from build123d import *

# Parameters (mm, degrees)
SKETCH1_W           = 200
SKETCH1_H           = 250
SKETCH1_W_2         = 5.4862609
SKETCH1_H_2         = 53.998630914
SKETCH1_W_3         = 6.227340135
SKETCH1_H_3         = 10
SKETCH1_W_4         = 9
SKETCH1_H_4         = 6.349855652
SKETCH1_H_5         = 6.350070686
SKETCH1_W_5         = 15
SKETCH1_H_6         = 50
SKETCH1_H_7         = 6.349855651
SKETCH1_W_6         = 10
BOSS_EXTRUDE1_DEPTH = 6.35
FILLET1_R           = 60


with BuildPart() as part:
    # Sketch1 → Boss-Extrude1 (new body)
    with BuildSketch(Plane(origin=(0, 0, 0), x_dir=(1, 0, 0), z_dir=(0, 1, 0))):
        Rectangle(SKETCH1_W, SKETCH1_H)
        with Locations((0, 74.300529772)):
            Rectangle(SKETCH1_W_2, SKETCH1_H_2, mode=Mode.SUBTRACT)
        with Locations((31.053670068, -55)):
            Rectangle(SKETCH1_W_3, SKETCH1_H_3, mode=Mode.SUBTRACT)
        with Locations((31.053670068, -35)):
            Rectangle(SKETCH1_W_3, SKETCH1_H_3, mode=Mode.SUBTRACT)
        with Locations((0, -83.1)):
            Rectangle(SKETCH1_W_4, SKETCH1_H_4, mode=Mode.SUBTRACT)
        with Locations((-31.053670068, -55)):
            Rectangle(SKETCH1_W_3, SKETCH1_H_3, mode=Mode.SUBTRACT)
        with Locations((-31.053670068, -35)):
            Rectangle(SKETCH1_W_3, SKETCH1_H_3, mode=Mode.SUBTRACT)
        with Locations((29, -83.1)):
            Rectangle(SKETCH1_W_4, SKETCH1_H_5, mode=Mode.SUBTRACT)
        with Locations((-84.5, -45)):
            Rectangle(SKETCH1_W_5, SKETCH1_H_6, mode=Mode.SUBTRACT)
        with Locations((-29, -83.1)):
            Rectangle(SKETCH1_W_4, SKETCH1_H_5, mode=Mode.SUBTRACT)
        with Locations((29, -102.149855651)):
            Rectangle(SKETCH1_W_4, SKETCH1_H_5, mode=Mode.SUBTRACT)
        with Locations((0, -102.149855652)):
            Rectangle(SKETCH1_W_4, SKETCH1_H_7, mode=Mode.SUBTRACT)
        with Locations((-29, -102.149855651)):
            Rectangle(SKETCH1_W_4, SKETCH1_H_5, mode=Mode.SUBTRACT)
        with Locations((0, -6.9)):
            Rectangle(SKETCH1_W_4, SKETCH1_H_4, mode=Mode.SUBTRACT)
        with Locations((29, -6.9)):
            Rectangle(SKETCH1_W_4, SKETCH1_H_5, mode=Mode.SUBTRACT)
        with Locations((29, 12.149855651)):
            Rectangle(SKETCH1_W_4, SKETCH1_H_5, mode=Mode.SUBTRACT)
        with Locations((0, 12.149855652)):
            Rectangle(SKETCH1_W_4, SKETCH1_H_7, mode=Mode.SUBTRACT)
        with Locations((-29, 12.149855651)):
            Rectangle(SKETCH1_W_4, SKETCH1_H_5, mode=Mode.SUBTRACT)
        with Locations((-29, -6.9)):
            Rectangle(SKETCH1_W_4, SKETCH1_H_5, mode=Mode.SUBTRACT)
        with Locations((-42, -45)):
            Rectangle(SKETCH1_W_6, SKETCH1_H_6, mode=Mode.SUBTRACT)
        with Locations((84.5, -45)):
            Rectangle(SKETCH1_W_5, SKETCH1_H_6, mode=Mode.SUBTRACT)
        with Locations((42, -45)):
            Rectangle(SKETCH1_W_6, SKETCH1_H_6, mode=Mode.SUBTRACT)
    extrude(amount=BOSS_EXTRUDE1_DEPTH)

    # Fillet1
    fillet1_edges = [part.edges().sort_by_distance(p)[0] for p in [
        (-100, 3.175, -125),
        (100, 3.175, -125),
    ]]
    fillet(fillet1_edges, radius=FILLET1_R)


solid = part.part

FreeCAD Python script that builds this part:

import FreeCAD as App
import Part
import Sketcher
from FreeCAD import Vector


def edges_at(feature, points):
    """Names of the edges that pass closest to the given points."""
    edges = feature.Shape.Edges
    near = lambda p: min(range(len(edges)), key=lambda i: edges[i].distToShape(Part.Vertex(*p))[0])
    return sorted({f"Edge{near(p) + 1}" for p in points})

doc = App.newDocument("Part")
body = doc.addObject("PartDesign::Body", "Body")

# Sketch on XZ plane
sketch1 = doc.addObject("Sketcher::SketchObject", "Sketch")
body.addObject(sketch1)
sketch1.AttachmentSupport = (doc.XZ_Plane, [""])
sketch1.MapMode = "FlatFace"
sketch1.addGeometry([
    Part.LineSegment(Vector(-100, -125, 0), Vector(-100, 125, 0)),  # 0
    Part.LineSegment(Vector(-100, 125, 0), Vector(100, 125, 0)),  # 1
    Part.LineSegment(Vector(100, 125, 0), Vector(100, -125, 0)),  # 2
    Part.LineSegment(Vector(100, -125, 0), Vector(-100, -125, 0)),  # 3
    Part.LineSegment(Vector(-24, 105, 0), Vector(-34, 105, 0)),  # 4
    Part.LineSegment(Vector(-34, 105, 0), Vector(-34, 99, 0)),  # 5
    Part.LineSegment(Vector(-34, 99, 0), Vector(-24, 99, 0)),  # 6
    Part.LineSegment(Vector(-24, 99, 0), Vector(-24, 105, 0)),  # 7
    Part.LineSegment(Vector(-24, 86, 0), Vector(-34, 86, 0)),  # 8
    Part.LineSegment(Vector(-34, 86, 0), Vector(-34, 80, 0)),  # 9
    Part.LineSegment(Vector(-34, 80, 0), Vector(-24, 80, 0)),  # 10
    Part.LineSegment(Vector(-24, 80, 0), Vector(-24, 86, 0)),  # 11
    Part.LineSegment(Vector(-28, 60, 0), Vector(-34, 60, 0)),  # 12
    Part.LineSegment(Vector(-34, 60, 0), Vector(-34, 50, 0)),  # 13
    Part.LineSegment(Vector(-34, 50, 0), Vector(-28, 50, 0)),  # 14
    Part.LineSegment(Vector(-28, 50, 0), Vector(-28, 60, 0)),  # 15
    Part.LineSegment(Vector(-77, 70, 0), Vector(-92, 70, 0)),  # 16
    Part.LineSegment(Vector(-92, 70, 0), Vector(-92, 20, 0)),  # 17
    Part.LineSegment(Vector(-92, 20, 0), Vector(-77, 20, 0)),  # 18
    Part.LineSegment(Vector(-77, 20, 0), Vector(-77, 70, 0)),  # 19
    Part.LineSegment(Vector(-37, 70, 0), Vector(-47, 70, 0)),  # 20
    Part.LineSegment(Vector(-47, 70, 0), Vector(-47, 20, 0)),  # 21
    Part.LineSegment(Vector(-47, 20, 0), Vector(-37, 20, 0)),  # 22
    Part.LineSegment(Vector(-37, 20, 0), Vector(-37, 70, 0)),  # 23
    Part.LineSegment(Vector(-28, 40, 0), Vector(-34, 40, 0)),  # 24
    Part.LineSegment(Vector(-34, 40, 0), Vector(-34, 30, 0)),  # 25
    Part.LineSegment(Vector(-34, 30, 0), Vector(-28, 30, 0)),  # 26
    Part.LineSegment(Vector(-28, 30, 0), Vector(-28, 40, 0)),  # 27
    Part.LineSegment(Vector(-24, 10, 0), Vector(-34, 10, 0)),  # 28
    Part.LineSegment(Vector(-34, 10, 0), Vector(-34, 4, 0)),  # 29
    Part.LineSegment(Vector(-34, 4, 0), Vector(-24, 4, 0)),  # 30
    Part.LineSegment(Vector(-24, 4, 0), Vector(-24, 10, 0)),  # 31
    Part.LineSegment(Vector(4, 105, 0), Vector(-4, 105, 0)),  # 32
    Part.LineSegment(Vector(-4, 105, 0), Vector(-4, 99, 0)),  # 33
    Part.LineSegment(Vector(-4, 99, 0), Vector(4, 99, 0)),  # 34
    Part.LineSegment(Vector(4, 99, 0), Vector(4, 105, 0)),  # 35
    Part.LineSegment(Vector(4, 86, 0), Vector(-4, 86, 0)),  # 36
    Part.LineSegment(Vector(-4, 86, 0), Vector(-4, 80, 0)),  # 37
    Part.LineSegment(Vector(-4, 80, 0), Vector(4, 80, 0)),  # 38
    Part.LineSegment(Vector(4, 80, 0), Vector(4, 86, 0)),  # 39
    Part.LineSegment(Vector(34, 105, 0), Vector(24, 105, 0)),  # 40
    Part.LineSegment(Vector(24, 105, 0), Vector(24, 99, 0)),  # 41
    Part.LineSegment(Vector(24, 99, 0), Vector(34, 99, 0)),  # 42
    Part.LineSegment(Vector(34, 99, 0), Vector(34, 105, 0)),  # 43
    Part.LineSegment(Vector(34, 86, 0), Vector(24, 86, 0)),  # 44
    Part.LineSegment(Vector(24, 86, 0), Vector(24, 80, 0)),  # 45
    Part.LineSegment(Vector(24, 80, 0), Vector(34, 80, 0)),  # 46
    Part.LineSegment(Vector(34, 80, 0), Vector(34, 86, 0)),  # 47
    Part.LineSegment(Vector(34, 60, 0), Vector(28, 60, 0)),  # 48
    Part.LineSegment(Vector(28, 60, 0), Vector(28, 50, 0)),  # 49
    Part.LineSegment(Vector(28, 50, 0), Vector(34, 50, 0)),  # 50
    Part.LineSegment(Vector(34, 50, 0), Vector(34, 60, 0)),  # 51
    Part.LineSegment(Vector(47, 70, 0), Vector(37, 70, 0)),  # 52
    Part.LineSegment(Vector(37, 70, 0), Vector(37, 20, 0)),  # 53
    Part.LineSegment(Vector(37, 20, 0), Vector(47, 20, 0)),  # 54
    Part.LineSegment(Vector(47, 20, 0), Vector(47, 70, 0)),  # 55
    Part.LineSegment(Vector(34, 40, 0), Vector(28, 40, 0)),  # 56
    Part.LineSegment(Vector(28, 40, 0), Vector(28, 30, 0)),  # 57
    Part.LineSegment(Vector(28, 30, 0), Vector(34, 30, 0)),  # 58
    Part.LineSegment(Vector(34, 30, 0), Vector(34, 40, 0)),  # 59
    Part.LineSegment(Vector(4, 10, 0), Vector(-4, 10, 0)),  # 60
    Part.LineSegment(Vector(-4, 10, 0), Vector(-4, 4, 0)),  # 61
    Part.LineSegment(Vector(-4, 4, 0), Vector(4, 4, 0)),  # 62
    Part.LineSegment(Vector(4, 4, 0), Vector(4, 10, 0)),  # 63
    Part.LineSegment(Vector(34, 10, 0), Vector(24, 10, 0)),  # 64
    Part.LineSegment(Vector(24, 10, 0), Vector(24, 4, 0)),  # 65
    Part.LineSegment(Vector(24, 4, 0), Vector(34, 4, 0)),  # 66
    Part.LineSegment(Vector(34, 4, 0), Vector(34, 10, 0)),  # 67
    Part.LineSegment(Vector(92, 70, 0), Vector(77, 70, 0)),  # 68
    Part.LineSegment(Vector(77, 70, 0), Vector(77, 20, 0)),  # 69
    Part.LineSegment(Vector(77, 20, 0), Vector(92, 20, 0)),  # 70
    Part.LineSegment(Vector(92, 20, 0), Vector(92, 70, 0)),  # 71
    Part.LineSegment(Vector(-24, -9, 0), Vector(-34, -9, 0)),  # 72
    Part.LineSegment(Vector(-34, -9, 0), Vector(-34, -15, 0)),  # 73
    Part.LineSegment(Vector(-34, -15, 0), Vector(-24, -15, 0)),  # 74
    Part.LineSegment(Vector(-24, -15, 0), Vector(-24, -9, 0)),  # 75
    Part.LineSegment(Vector(4, -9, 0), Vector(-4, -9, 0)),  # 76
    Part.LineSegment(Vector(-4, -9, 0), Vector(-4, -15, 0)),  # 77
    Part.LineSegment(Vector(-4, -15, 0), Vector(4, -15, 0)),  # 78
    Part.LineSegment(Vector(4, -15, 0), Vector(4, -9, 0)),  # 79
    Part.LineSegment(Vector(34, -9, 0), Vector(24, -9, 0)),  # 80
    Part.LineSegment(Vector(24, -9, 0), Vector(24, -15, 0)),  # 81
    Part.LineSegment(Vector(24, -15, 0), Vector(34, -15, 0)),  # 82
    Part.LineSegment(Vector(34, -15, 0), Vector(34, -9, 0)),  # 83
    Part.LineSegment(Vector(3, -47, 0), Vector(-3, -47, 0)),  # 84
    Part.LineSegment(Vector(-3, -47, 0), Vector(-3, -101, 0)),  # 85
    Part.LineSegment(Vector(-3, -101, 0), Vector(3, -101, 0)),  # 86
    Part.LineSegment(Vector(3, -101, 0), Vector(3, -47, 0)),  # 87
], False)
sketch1.addConstraint([
    Sketcher.Constraint("Coincident", 0, 2, 1, 1),
    Sketcher.Constraint("Coincident", 1, 2, 2, 1),
    Sketcher.Constraint("Coincident", 2, 2, 3, 1),
    Sketcher.Constraint("Coincident", 3, 2, 0, 1),
    Sketcher.Constraint("Coincident", 4, 2, 5, 1),
    Sketcher.Constraint("Coincident", 5, 2, 6, 1),
    Sketcher.Constraint("Coincident", 6, 2, 7, 1),
    Sketcher.Constraint("Coincident", 7, 2, 4, 1),
    Sketcher.Constraint("Coincident", 8, 2, 9, 1),
    Sketcher.Constraint("Coincident", 9, 2, 10, 1),
    Sketcher.Constraint("Coincident", 10, 2, 11, 1),
    Sketcher.Constraint("Coincident", 11, 2, 8, 1),
    Sketcher.Constraint("Coincident", 12, 2, 13, 1),
    Sketcher.Constraint("Coincident", 13, 2, 14, 1),
    Sketcher.Constraint("Coincident", 14, 2, 15, 1),
    Sketcher.Constraint("Coincident", 15, 2, 12, 1),
    Sketcher.Constraint("Coincident", 16, 2, 17, 1),
    Sketcher.Constraint("Coincident", 17, 2, 18, 1),
    Sketcher.Constraint("Coincident", 18, 2, 19, 1),
    Sketcher.Constraint("Coincident", 19, 2, 16, 1),
    Sketcher.Constraint("Coincident", 20, 2, 21, 1),
    Sketcher.Constraint("Coincident", 21, 2, 22, 1),
    Sketcher.Constraint("Coincident", 22, 2, 23, 1),
    Sketcher.Constraint("Coincident", 23, 2, 20, 1),
    Sketcher.Constraint("Coincident", 24, 2, 25, 1),
    Sketcher.Constraint("Coincident", 25, 2, 26, 1),
    Sketcher.Constraint("Coincident", 26, 2, 27, 1),
    Sketcher.Constraint("Coincident", 27, 2, 24, 1),
    Sketcher.Constraint("Coincident", 28, 2, 29, 1),
    Sketcher.Constraint("Coincident", 29, 2, 30, 1),
    Sketcher.Constraint("Coincident", 30, 2, 31, 1),
    Sketcher.Constraint("Coincident", 31, 2, 28, 1),
    Sketcher.Constraint("Coincident", 32, 2, 33, 1),
    Sketcher.Constraint("Coincident", 33, 2, 34, 1),
    Sketcher.Constraint("Coincident", 34, 2, 35, 1),
    Sketcher.Constraint("Coincident", 35, 2, 32, 1),
    Sketcher.Constraint("Coincident", 36, 2, 37, 1),
    Sketcher.Constraint("Coincident", 37, 2, 38, 1),
    Sketcher.Constraint("Coincident", 38, 2, 39, 1),
    Sketcher.Constraint("Coincident", 39, 2, 36, 1),
    Sketcher.Constraint("Coincident", 40, 2, 41, 1),
    Sketcher.Constraint("Coincident", 41, 2, 42, 1),
    Sketcher.Constraint("Coincident", 42, 2, 43, 1),
    Sketcher.Constraint("Coincident", 43, 2, 40, 1),
    Sketcher.Constraint("Coincident", 44, 2, 45, 1),
    Sketcher.Constraint("Coincident", 45, 2, 46, 1),
    Sketcher.Constraint("Coincident", 46, 2, 47, 1),
    Sketcher.Constraint("Coincident", 47, 2, 44, 1),
    Sketcher.Constraint("Coincident", 48, 2, 49, 1),
    Sketcher.Constraint("Coincident", 49, 2, 50, 1),
    Sketcher.Constraint("Coincident", 50, 2, 51, 1),
    Sketcher.Constraint("Coincident", 51, 2, 48, 1),
    Sketcher.Constraint("Coincident", 52, 2, 53, 1),
    Sketcher.Constraint("Coincident", 53, 2, 54, 1),
    Sketcher.Constraint("Coincident", 54, 2, 55, 1),
    Sketcher.Constraint("Coincident", 55, 2, 52, 1),
    Sketcher.Constraint("Coincident", 56, 2, 57, 1),
    Sketcher.Constraint("Coincident", 57, 2, 58, 1),
    Sketcher.Constraint("Coincident", 58, 2, 59, 1),
    Sketcher.Constraint("Coincident", 59, 2, 56, 1),
    Sketcher.Constraint("Coincident", 60, 2, 61, 1),
    Sketcher.Constraint("Coincident", 61, 2, 62, 1),
    Sketcher.Constraint("Coincident", 62, 2, 63, 1),
    Sketcher.Constraint("Coincident", 63, 2, 60, 1),
    Sketcher.Constraint("Coincident", 64, 2, 65, 1),
    Sketcher.Constraint("Coincident", 65, 2, 66, 1),
    Sketcher.Constraint("Coincident", 66, 2, 67, 1),
    Sketcher.Constraint("Coincident", 67, 2, 64, 1),
    Sketcher.Constraint("Coincident", 68, 2, 69, 1),
    Sketcher.Constraint("Coincident", 69, 2, 70, 1),
    Sketcher.Constraint("Coincident", 70, 2, 71, 1),
    Sketcher.Constraint("Coincident", 71, 2, 68, 1),
    Sketcher.Constraint("Coincident", 72, 2, 73, 1),
    Sketcher.Constraint("Coincident", 73, 2, 74, 1),
    Sketcher.Constraint("Coincident", 74, 2, 75, 1),
    Sketcher.Constraint("Coincident", 75, 2, 72, 1),
    Sketcher.Constraint("Coincident", 76, 2, 77, 1),
    Sketcher.Constraint("Coincident", 77, 2, 78, 1),
    Sketcher.Constraint("Coincident", 78, 2, 79, 1),
    Sketcher.Constraint("Coincident", 79, 2, 76, 1),
    Sketcher.Constraint("Coincident", 80, 2, 81, 1),
    Sketcher.Constraint("Coincident", 81, 2, 82, 1),
    Sketcher.Constraint("Coincident", 82, 2, 83, 1),
    Sketcher.Constraint("Coincident", 83, 2, 80, 1),
    Sketcher.Constraint("Coincident", 84, 2, 85, 1),
    Sketcher.Constraint("Coincident", 85, 2, 86, 1),
    Sketcher.Constraint("Coincident", 86, 2, 87, 1),
    Sketcher.Constraint("Coincident", 87, 2, 84, 1),
    Sketcher.Constraint("Vertical", 0),
    Sketcher.Constraint("Horizontal", 1),
    Sketcher.Constraint("Vertical", 2),
    Sketcher.Constraint("Horizontal", 3),
    Sketcher.Constraint("Horizontal", 4),
    Sketcher.Constraint("Vertical", 5),
    Sketcher.Constraint("Horizontal", 6),
    Sketcher.Constraint("Vertical", 7),
    Sketcher.Constraint("Horizontal", 8),
    Sketcher.Constraint("Vertical", 9),
    Sketcher.Constraint("Horizontal", 10),
    Sketcher.Constraint("Vertical", 11),
    Sketcher.Constraint("Horizontal", 12),
    Sketcher.Constraint("Vertical", 13),
    Sketcher.Constraint("Horizontal", 14),
    Sketcher.Constraint("Vertical", 15),
    Sketcher.Constraint("Horizontal", 16),
    Sketcher.Constraint("Vertical", 17),
    Sketcher.Constraint("Horizontal", 18),
    Sketcher.Constraint("Vertical", 19),
    Sketcher.Constraint("Horizontal", 20),
    Sketcher.Constraint("Vertical", 21),
    Sketcher.Constraint("Horizontal", 22),
    Sketcher.Constraint("Vertical", 23),
    Sketcher.Constraint("Horizontal", 24),
    Sketcher.Constraint("Vertical", 25),
    Sketcher.Constraint("Horizontal", 26),
    Sketcher.Constraint("Vertical", 27),
    Sketcher.Constraint("Horizontal", 28),
    Sketcher.Constraint("Vertical", 29),
    Sketcher.Constraint("Horizontal", 30),
    Sketcher.Constraint("Vertical", 31),
    Sketcher.Constraint("Horizontal", 32),
    Sketcher.Constraint("Vertical", 33),
    Sketcher.Constraint("Horizontal", 34),
    Sketcher.Constraint("Vertical", 35),
    Sketcher.Constraint("Horizontal", 36),
    Sketcher.Constraint("Vertical", 37),
    Sketcher.Constraint("Horizontal", 38),
    Sketcher.Constraint("Vertical", 39),
    Sketcher.Constraint("Horizontal", 40),
    Sketcher.Constraint("Vertical", 41),
    Sketcher.Constraint("Horizontal", 42),
    Sketcher.Constraint("Vertical", 43),
    Sketcher.Constraint("Horizontal", 44),
    Sketcher.Constraint("Vertical", 45),
    Sketcher.Constraint("Horizontal", 46),
    Sketcher.Constraint("Vertical", 47),
    Sketcher.Constraint("Horizontal", 48),
    Sketcher.Constraint("Vertical", 49),
    Sketcher.Constraint("Horizontal", 50),
    Sketcher.Constraint("Vertical", 51),
    Sketcher.Constraint("Horizontal", 52),
    Sketcher.Constraint("Vertical", 53),
    Sketcher.Constraint("Horizontal", 54),
    Sketcher.Constraint("Vertical", 55),
    Sketcher.Constraint("Horizontal", 56),
    Sketcher.Constraint("Vertical", 57),
    Sketcher.Constraint("Horizontal", 58),
    Sketcher.Constraint("Vertical", 59),
    Sketcher.Constraint("Horizontal", 60),
    Sketcher.Constraint("Vertical", 61),
    Sketcher.Constraint("Horizontal", 62),
    Sketcher.Constraint("Vertical", 63),
    Sketcher.Constraint("Horizontal", 64),
    Sketcher.Constraint("Vertical", 65),
    Sketcher.Constraint("Horizontal", 66),
    Sketcher.Constraint("Vertical", 67),
    Sketcher.Constraint("Horizontal", 68),
    Sketcher.Constraint("Vertical", 69),
    Sketcher.Constraint("Horizontal", 70),
    Sketcher.Constraint("Vertical", 71),
    Sketcher.Constraint("Horizontal", 72),
    Sketcher.Constraint("Vertical", 73),
    Sketcher.Constraint("Horizontal", 74),
    Sketcher.Constraint("Vertical", 75),
    Sketcher.Constraint("Horizontal", 76),
    Sketcher.Constraint("Vertical", 77),
    Sketcher.Constraint("Horizontal", 78),
    Sketcher.Constraint("Vertical", 79),
    Sketcher.Constraint("Horizontal", 80),
    Sketcher.Constraint("Vertical", 81),
    Sketcher.Constraint("Horizontal", 82),
    Sketcher.Constraint("Vertical", 83),
    Sketcher.Constraint("Horizontal", 84),
    Sketcher.Constraint("Vertical", 85),
    Sketcher.Constraint("Horizontal", 86),
    Sketcher.Constraint("Vertical", 87),
    Sketcher.Constraint("Symmetric", 0, 2, 2, 2, -1, 1),
    Sketcher.Constraint("Symmetric", 7, 2, 40, 2, -2),
    Sketcher.Constraint("Symmetric", 5, 2, 42, 2, -2),
    Sketcher.Constraint("Symmetric", 11, 2, 44, 2, -2),
    Sketcher.Constraint("Symmetric", 9, 2, 46, 2, -2),
    Sketcher.Constraint("Symmetric", 15, 2, 48, 2, -2),
    Sketcher.Constraint("Symmetric", 13, 2, 50, 2, -2),
    Sketcher.Constraint("Symmetric", 23, 2, 52, 2, -2),
    Sketcher.Constraint("Symmetric", 21, 2, 54, 2, -2),
    Sketcher.Constraint("Symmetric", 27, 2, 56, 2, -2),
    Sketcher.Constraint("Symmetric", 25, 2, 58, 2, -2),
    Sketcher.Constraint("Symmetric", 31, 2, 64, 2, -2),
    Sketcher.Constraint("Symmetric", 29, 2, 66, 2, -2),
    Sketcher.Constraint("Symmetric", 19, 2, 68, 2, -2),
    Sketcher.Constraint("Symmetric", 17, 2, 70, 2, -2),
    Sketcher.Constraint("Symmetric", 75, 2, 80, 2, -2),
    Sketcher.Constraint("Symmetric", 73, 2, 82, 2, -2),
    Sketcher.Constraint("Horizontal", 19, 2, 20, 2),
    Sketcher.Constraint("Horizontal", 18, 2, 21, 2),
    Sketcher.Constraint("Vertical", 5, 2, 8, 2),
    Sketcher.Constraint("Vertical", 7, 2, 10, 2),
    Sketcher.Constraint("Vertical", 13, 2, 24, 2),
    Sketcher.Constraint("Vertical", 15, 2, 26, 2),
    Sketcher.Constraint("Vertical", 9, 2, 28, 2),
    Sketcher.Constraint("Vertical", 11, 2, 30, 2),
    Sketcher.Constraint("Vertical", 33, 2, 36, 2),
    Sketcher.Constraint("Vertical", 35, 2, 38, 2),
    Sketcher.Constraint("Vertical", 37, 2, 60, 2),
    Sketcher.Constraint("Vertical", 39, 2, 62, 2),
    Sketcher.Constraint("Vertical", 29, 2, 72, 2),
    Sketcher.Constraint("Vertical", 31, 2, 74, 2),
    Sketcher.Constraint("Vertical", 61, 2, 76, 2),
    Sketcher.Constraint("Vertical", 63, 2, 78, 2),
    Sketcher.Constraint("Equal", 30, 32),
    Sketcher.Constraint("Equal", 7, 9),
    Sketcher.Constraint("Equal", 54, 13),
    Sketcher.Constraint("Equal", 15, 25),
    Sketcher.Constraint("Equal", 11, 29),
    Sketcher.Constraint("Equal", 35, 37),
    Sketcher.Constraint("Equal", 39, 61),
    Sketcher.Constraint("Equal", 67, 73),
    Sketcher.Constraint("Equal", 63, 77),
    Sketcher.Constraint("DistanceX", 1, 1, 1, 2, 200.0),
    Sketcher.Constraint("DistanceX", 4, 2, 4, 1, 9.0),
    Sketcher.Constraint("DistanceX", 16, 2, 16, 1, 15.0),
    Sketcher.Constraint("DistanceX", 20, 2, 20, 1, 10.0),
    Sketcher.Constraint("DistanceY", 0, 1, 0, 2, 250.0),
    Sketcher.Constraint("DistanceY", 17, 2, 17, 1, 50.0),
    Sketcher.Constraint("DistanceY", -1, 1, 12, 2, 60.0),
    Sketcher.Constraint("DistanceX", 16, 2, -1, 1, 92.0),
    Sketcher.Constraint("DistanceY", -1, 1, 16, 2, 70.0),
    Sketcher.Constraint("DistanceX", 20, 2, -1, 1, 47.0),
    Sketcher.Constraint("DistanceY", -1, 1, 24, 2, 40.0),
    Sketcher.Constraint("DistanceX", 4, 2, -1, 1, 33.5),
    Sketcher.Constraint("DistanceX", 32, 2, -1, 1, 4.5),
    Sketcher.Constraint("DistanceX", 14, 2, -1, 1, 27.94),
    Sketcher.Constraint("DistanceX", 12, 2, 12, 1, 6.22734),
    Sketcher.Constraint("DistanceX", 84, 2, 84, 1, 5.486261),
    Sketcher.Constraint("DistanceY", 5, 2, 5, 1, 6.350071),
    Sketcher.Constraint("DistanceY", 85, 2, 85, 1, 53.998631),
    Sketcher.Constraint("DistanceY", 33, 2, 33, 1, 6.349856),
    Sketcher.Constraint("DistanceY", -1, 1, 4, 2, 105.324891),
    Sketcher.Constraint("DistanceY", 72, 2, -1, 1, 8.97482),
    Sketcher.Constraint("DistanceX", 84, 2, -1, 1, 2.74313),
    Sketcher.Constraint("DistanceY", -1, 1, 8, 2, 86.275035),
    Sketcher.Constraint("DistanceY", -1, 1, 28, 2, 10.075035),
    Sketcher.Constraint("DistanceY", -1, 1, 32, 2, 105.324783),
    Sketcher.Constraint("DistanceY", -1, 1, 36, 2, 86.274928),
    Sketcher.Constraint("DistanceY", -1, 1, 60, 2, 10.074928),
    Sketcher.Constraint("DistanceY", 76, 2, -1, 1, 8.974928),
    Sketcher.Constraint("DistanceY", 84, 2, -1, 1, 47.301214),
])
pad1 = doc.addObject("PartDesign::Pad", "Pad")
body.addObject(pad1)
pad1.Profile = sketch1
pad1.Length = 6.35
pad1.Reversed = True
doc.recompute()

fillet = doc.addObject("PartDesign::Fillet", "Fillet")
body.addObject(fillet)
fillet.Base = (pad1, edges_at(pad1, [(-100, 3.175, -125), (100, 3.175, -125)]))
fillet.Radius = 60

doc.recompute()
